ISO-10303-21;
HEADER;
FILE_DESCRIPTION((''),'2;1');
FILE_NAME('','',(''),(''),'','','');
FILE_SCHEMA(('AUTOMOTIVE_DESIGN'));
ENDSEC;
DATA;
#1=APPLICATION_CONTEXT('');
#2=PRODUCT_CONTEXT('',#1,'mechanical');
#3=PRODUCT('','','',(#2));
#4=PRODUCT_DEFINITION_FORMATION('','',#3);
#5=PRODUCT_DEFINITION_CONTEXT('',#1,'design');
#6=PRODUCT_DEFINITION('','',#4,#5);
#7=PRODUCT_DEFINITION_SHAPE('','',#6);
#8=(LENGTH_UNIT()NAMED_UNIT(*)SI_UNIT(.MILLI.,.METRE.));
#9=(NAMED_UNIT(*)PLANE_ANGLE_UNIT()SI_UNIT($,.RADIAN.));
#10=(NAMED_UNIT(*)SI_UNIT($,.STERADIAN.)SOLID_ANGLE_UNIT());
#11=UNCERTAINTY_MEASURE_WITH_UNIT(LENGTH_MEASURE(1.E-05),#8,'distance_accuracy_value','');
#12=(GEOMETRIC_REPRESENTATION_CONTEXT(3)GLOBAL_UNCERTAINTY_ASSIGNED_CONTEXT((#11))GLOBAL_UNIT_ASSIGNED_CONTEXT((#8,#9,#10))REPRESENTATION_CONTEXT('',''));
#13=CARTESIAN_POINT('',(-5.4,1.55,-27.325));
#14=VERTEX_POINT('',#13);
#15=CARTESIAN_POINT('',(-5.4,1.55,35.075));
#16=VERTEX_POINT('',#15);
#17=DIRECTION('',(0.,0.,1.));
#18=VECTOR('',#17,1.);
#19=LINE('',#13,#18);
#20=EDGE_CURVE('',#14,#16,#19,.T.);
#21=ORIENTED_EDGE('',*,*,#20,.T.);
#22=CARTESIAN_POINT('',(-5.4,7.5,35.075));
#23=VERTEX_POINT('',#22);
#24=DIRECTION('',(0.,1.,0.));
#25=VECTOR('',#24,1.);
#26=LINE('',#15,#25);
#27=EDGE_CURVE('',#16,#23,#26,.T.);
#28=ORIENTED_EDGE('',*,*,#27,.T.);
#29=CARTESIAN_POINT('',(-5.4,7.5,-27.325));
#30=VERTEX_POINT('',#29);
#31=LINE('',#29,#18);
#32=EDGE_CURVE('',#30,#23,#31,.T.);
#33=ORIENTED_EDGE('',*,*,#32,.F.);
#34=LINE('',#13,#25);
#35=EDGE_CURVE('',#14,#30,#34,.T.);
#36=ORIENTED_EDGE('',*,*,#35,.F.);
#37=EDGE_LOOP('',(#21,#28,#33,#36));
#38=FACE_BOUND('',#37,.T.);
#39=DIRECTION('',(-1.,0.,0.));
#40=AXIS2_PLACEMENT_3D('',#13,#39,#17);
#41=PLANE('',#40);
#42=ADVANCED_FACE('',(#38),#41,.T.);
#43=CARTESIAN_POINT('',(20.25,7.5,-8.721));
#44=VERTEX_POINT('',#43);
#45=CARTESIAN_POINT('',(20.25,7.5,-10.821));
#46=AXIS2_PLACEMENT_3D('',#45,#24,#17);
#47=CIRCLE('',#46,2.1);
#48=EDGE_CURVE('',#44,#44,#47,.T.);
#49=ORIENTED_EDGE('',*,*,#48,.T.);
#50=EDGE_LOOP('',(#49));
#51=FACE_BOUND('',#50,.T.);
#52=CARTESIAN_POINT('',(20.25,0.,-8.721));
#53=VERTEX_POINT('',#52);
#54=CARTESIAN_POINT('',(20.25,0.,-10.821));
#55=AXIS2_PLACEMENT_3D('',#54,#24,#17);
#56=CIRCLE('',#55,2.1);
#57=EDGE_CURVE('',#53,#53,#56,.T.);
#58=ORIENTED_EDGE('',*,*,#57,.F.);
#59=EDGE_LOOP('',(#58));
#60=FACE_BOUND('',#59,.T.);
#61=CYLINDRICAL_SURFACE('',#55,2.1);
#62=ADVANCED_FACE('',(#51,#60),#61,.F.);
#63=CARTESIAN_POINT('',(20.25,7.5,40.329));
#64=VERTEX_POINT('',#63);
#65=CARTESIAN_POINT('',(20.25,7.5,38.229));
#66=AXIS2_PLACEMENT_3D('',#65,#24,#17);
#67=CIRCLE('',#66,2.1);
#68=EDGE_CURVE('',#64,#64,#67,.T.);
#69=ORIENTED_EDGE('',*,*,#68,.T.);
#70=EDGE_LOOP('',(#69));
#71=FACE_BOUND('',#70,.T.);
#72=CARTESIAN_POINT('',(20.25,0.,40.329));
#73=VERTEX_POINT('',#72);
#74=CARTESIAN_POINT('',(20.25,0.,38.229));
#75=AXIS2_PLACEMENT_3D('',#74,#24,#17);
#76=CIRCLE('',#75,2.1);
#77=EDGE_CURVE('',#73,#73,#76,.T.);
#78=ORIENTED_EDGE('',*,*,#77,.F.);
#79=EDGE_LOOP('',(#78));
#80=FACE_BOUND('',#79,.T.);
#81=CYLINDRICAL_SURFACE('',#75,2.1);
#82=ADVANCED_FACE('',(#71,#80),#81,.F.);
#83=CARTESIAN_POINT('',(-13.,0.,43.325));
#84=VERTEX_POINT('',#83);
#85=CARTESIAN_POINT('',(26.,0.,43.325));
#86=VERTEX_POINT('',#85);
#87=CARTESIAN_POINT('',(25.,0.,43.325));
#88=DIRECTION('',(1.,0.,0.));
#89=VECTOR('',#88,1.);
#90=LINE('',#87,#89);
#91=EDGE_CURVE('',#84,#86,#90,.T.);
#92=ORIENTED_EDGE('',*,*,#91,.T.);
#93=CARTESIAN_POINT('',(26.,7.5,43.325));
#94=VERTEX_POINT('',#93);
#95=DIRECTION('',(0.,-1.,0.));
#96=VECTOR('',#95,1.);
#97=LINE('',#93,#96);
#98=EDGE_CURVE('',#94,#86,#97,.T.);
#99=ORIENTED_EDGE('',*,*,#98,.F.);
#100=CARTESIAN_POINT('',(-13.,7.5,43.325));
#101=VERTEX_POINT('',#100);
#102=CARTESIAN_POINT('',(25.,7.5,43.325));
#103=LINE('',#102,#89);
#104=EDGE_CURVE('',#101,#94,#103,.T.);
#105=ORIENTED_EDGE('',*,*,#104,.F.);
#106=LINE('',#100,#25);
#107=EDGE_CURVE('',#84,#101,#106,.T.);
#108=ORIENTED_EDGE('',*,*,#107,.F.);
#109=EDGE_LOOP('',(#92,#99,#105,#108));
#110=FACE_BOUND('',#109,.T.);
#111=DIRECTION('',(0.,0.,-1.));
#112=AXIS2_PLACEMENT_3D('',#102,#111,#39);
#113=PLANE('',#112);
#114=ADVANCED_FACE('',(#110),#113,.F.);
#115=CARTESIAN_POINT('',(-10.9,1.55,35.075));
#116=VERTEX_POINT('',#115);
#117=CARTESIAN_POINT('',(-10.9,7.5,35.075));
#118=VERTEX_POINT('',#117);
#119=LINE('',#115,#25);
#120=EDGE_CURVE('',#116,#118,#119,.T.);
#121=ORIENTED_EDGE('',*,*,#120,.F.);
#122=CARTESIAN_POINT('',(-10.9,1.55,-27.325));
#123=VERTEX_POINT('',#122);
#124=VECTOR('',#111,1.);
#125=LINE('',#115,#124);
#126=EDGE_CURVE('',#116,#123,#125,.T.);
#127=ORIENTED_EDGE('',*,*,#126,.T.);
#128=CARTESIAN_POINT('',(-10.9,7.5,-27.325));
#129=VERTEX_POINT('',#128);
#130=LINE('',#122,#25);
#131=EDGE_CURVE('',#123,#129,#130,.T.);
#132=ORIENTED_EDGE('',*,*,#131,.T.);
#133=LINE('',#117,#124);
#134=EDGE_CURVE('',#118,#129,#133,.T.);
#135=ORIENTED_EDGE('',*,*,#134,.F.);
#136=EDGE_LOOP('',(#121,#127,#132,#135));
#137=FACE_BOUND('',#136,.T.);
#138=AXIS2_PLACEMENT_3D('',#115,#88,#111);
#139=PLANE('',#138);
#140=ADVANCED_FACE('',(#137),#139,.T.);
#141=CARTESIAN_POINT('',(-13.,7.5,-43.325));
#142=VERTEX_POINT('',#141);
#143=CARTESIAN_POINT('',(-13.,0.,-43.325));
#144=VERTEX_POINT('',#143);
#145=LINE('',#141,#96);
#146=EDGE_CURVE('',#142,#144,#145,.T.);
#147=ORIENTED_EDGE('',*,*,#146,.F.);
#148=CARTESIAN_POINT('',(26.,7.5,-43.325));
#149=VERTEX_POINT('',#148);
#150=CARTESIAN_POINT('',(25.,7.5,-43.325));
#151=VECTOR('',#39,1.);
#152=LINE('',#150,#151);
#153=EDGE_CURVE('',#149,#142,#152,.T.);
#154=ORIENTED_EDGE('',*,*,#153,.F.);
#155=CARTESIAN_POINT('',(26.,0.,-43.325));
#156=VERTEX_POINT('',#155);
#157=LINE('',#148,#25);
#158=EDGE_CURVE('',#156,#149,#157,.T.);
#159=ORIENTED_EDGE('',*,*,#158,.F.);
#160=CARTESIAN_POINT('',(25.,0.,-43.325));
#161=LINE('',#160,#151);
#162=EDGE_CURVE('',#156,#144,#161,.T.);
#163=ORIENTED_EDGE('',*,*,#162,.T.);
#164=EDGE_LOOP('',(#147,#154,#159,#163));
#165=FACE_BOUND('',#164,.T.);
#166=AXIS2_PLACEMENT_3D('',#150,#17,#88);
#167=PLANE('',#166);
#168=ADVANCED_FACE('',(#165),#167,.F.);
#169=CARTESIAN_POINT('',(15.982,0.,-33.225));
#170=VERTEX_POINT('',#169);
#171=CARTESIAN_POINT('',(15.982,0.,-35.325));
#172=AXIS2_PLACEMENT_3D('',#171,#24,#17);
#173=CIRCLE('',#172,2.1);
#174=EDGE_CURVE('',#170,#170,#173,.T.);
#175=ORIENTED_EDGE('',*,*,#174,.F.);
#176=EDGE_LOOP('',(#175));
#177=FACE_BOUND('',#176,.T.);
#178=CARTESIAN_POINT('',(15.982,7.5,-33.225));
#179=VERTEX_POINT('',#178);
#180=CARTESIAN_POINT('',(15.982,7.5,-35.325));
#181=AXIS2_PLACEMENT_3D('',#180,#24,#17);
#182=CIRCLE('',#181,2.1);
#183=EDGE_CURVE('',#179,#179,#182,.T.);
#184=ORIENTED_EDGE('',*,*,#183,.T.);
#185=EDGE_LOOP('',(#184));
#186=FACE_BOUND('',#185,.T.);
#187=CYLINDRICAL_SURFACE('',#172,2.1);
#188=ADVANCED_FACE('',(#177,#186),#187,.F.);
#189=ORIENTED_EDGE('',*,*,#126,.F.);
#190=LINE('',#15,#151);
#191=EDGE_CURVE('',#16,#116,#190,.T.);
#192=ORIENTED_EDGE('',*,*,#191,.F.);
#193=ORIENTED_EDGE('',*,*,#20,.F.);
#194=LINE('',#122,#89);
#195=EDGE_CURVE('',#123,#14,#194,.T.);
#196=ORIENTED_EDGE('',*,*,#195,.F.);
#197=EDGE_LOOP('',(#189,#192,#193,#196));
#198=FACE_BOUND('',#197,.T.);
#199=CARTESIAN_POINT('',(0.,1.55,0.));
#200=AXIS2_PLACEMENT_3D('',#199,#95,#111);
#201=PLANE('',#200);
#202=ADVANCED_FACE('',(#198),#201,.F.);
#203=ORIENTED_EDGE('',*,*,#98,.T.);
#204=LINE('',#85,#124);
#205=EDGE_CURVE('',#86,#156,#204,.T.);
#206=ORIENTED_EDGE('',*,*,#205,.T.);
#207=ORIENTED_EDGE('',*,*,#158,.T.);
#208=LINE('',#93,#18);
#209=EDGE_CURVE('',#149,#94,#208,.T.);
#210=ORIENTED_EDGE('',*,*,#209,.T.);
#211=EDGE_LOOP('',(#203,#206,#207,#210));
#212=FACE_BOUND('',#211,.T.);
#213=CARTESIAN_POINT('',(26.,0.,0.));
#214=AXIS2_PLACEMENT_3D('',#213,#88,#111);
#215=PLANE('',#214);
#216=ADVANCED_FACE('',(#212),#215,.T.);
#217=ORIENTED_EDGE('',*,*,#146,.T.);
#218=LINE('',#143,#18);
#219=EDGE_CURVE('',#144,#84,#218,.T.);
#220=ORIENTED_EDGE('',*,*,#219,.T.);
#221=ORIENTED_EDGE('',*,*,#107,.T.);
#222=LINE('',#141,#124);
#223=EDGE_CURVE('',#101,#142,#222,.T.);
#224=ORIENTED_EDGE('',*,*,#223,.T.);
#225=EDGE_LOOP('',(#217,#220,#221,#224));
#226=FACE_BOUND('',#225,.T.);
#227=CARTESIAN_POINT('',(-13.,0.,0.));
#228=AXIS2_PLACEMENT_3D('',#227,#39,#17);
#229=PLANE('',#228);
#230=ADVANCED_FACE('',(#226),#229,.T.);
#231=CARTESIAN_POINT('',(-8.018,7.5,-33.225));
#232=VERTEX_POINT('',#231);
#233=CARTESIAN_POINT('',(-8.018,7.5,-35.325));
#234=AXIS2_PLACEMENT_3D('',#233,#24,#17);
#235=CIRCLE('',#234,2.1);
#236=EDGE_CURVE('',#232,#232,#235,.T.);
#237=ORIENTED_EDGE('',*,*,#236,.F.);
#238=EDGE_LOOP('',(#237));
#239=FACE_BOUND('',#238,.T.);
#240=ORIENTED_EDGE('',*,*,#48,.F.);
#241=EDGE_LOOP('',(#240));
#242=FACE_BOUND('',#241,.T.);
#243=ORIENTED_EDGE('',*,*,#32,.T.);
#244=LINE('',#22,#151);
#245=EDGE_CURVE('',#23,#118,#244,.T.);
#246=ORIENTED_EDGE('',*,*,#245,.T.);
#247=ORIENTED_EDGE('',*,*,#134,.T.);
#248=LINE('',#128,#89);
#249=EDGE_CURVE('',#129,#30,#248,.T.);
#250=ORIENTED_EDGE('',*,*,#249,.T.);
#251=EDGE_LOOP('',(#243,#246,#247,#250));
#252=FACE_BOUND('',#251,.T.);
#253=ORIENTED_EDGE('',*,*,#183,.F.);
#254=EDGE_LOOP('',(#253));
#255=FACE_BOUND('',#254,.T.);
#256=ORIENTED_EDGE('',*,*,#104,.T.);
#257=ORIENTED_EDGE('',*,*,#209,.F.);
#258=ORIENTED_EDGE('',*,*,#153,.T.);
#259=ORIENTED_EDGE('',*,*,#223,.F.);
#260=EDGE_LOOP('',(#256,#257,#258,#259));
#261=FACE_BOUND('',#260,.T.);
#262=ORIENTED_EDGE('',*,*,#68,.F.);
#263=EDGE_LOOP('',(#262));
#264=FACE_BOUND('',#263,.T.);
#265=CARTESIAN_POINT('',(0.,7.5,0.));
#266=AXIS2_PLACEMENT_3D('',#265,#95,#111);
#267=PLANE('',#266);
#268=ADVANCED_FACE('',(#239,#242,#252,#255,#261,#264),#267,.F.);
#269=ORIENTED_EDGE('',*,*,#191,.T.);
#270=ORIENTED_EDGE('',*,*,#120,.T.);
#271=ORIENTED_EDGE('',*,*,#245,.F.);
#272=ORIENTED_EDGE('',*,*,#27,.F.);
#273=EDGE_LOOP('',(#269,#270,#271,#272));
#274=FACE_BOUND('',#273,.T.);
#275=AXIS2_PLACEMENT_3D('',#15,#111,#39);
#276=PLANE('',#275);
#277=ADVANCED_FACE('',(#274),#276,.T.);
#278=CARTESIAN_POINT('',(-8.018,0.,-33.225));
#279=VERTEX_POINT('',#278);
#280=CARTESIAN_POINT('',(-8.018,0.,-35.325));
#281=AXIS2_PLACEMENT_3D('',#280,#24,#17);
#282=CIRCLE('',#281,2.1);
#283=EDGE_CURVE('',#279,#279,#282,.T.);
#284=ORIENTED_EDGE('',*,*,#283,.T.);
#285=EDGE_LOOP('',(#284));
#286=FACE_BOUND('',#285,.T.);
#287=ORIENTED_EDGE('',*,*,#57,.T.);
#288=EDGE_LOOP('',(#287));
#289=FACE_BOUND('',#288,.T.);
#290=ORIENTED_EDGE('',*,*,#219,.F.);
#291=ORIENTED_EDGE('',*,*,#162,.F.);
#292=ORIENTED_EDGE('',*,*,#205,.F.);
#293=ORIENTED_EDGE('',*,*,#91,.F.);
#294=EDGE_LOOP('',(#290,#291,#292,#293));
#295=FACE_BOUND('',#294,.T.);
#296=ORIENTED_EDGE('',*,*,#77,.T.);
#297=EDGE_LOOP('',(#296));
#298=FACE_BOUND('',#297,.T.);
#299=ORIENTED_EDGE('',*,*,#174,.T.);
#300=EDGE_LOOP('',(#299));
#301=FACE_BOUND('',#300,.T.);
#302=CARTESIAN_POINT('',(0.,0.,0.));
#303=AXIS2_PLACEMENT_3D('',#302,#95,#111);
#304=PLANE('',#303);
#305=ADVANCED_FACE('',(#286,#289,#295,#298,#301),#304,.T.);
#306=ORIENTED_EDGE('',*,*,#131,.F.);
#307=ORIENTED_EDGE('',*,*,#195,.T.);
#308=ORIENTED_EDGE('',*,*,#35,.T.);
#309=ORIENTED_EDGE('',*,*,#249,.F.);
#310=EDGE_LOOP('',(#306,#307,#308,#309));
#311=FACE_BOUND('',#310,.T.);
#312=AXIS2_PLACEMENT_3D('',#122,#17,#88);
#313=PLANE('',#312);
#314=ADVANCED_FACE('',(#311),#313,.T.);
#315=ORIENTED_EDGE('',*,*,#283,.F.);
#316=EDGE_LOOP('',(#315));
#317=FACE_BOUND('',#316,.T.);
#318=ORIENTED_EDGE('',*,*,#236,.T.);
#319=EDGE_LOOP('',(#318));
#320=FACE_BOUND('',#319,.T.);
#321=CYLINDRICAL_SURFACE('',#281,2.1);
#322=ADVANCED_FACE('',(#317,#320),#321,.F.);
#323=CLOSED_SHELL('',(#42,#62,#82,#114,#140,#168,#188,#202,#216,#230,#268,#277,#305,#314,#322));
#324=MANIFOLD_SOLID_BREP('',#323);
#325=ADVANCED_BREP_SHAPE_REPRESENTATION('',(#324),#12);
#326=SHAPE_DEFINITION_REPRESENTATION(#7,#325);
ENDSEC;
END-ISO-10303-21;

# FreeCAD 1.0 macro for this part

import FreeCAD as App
import Part
import Sketcher
from FreeCAD import Vector

doc = App.newDocument("Part")
body = doc.addObject("PartDesign::Body", "Body")

sketch1 = doc.addObject("Sketcher::SketchObject", "Sketch")
body.addObject(sketch1)
sketch1.AttachmentSupport = (doc.XZ_Plane, [""])
sketch1.MapMode = "FlatFace"
sketch1.addGeometry([
    Part.LineSegment(Vector(-25, -43, 0), Vector(-25, 43, 0)),
    Part.LineSegment(Vector(-25, 43, 0), Vector(25, 43, 0)),
    Part.LineSegment(Vector(25, 43, 0), Vector(25, -43, 0)),
    Part.LineSegment(Vector(25, -43, 0), Vector(-25, -43, 0)),
], False)
sketch1.addConstraint([
    Sketcher.Constraint("Coincident", 0, 2, 1, 1),
    Sketcher.Constraint("Coincident", 1, 2, 2, 1),
    Sketcher.Constraint("Coincident", 2, 2, 3, 1),
    Sketcher.Constraint("Coincident", 3, 2, 0, 1),
    Sketcher.Constraint("Vertical", 0),
    Sketcher.Constraint("Horizontal", 1),
    Sketcher.Constraint("Vertical", 2),
    Sketcher.Constraint("Horizontal", 3),
    Sketcher.Constraint("Symmetric", 0, 2, 2, 2, -1, 1),
    Sketcher.Constraint("DistanceX", 1, 1, 1, 2, 50.0),
    Sketcher.Constraint("DistanceY", 0, 1, 0, 2, 86.65),
])
pad1 = doc.addObject("PartDesign::Pad", "Pad")
body.addObject(pad1)
pad1.Profile = sketch1
pad1.Length = 7.5
pad1.Reversed = True

sketch2 = doc.addObject("Sketcher::SketchObject", "Sketch001")
body.addObject(sketch2)
sketch2.AttachmentSupport = (doc.XZ_Plane, [""])
sketch2.MapMode = "FlatFace"
sketch2.AttachmentOffset = App.Placement(Vector(0, 0, -7.5), App.Rotation())
sketch2.addGeometry([
    Part.LineSegment(Vector(-11, -27, 0), Vector(-11, 35, 0)),
    Part.LineSegment(Vector(-11, 35, 0), Vector(-5, 35, 0)),
    Part.LineSegment(Vector(-5, 35, 0), Vector(-5, -27, 0)),
    Part.LineSegment(Vector(-5, -27, 0), Vector(-11, -27, 0)),
], False)
sketch2.addConstraint([
    Sketcher.Constraint("Coincident", 0, 2, 1, 1),
    Sketcher.Constraint("Coincident", 1, 2, 2, 1),
    Sketcher.Constraint("Coincident", 2, 2, 3, 1),
    Sketcher.Constraint("Coincident", 3, 2, 0, 1),
    Sketcher.Constraint("Vertical", 0),
    Sketcher.Constraint("Horizontal", 1),
    Sketcher.Constraint("Vertical", 2),
    Sketcher.Constraint("Horizontal", 3),
    Sketcher.Constraint("DistanceX", 1, 1, 1, 2, 5.5),
    Sketcher.Constraint("DistanceY", 0, 1, 0, 2, 62.4),
    Sketcher.Constraint("DistanceX", 0, 2, -1, 1, 10.9),
    Sketcher.Constraint("DistanceY", -1, 1, 0, 2, 35.075),
])
pocket1 = doc.addObject("PartDesign::Pocket", "Pocket")
body.addObject(pocket1)
pocket1.Profile = sketch2
pocket1.Length = 5.95
pocket1.Reversed = True

sketch3 = doc.addObject("Sketcher::SketchObject", "Sketch002")
body.addObject(sketch3)
sketch3.AttachmentSupport = (doc.XZ_Plane, [""])
sketch3.MapMode = "FlatFace"
sketch3.AttachmentOffset = App.Placement(Vector(0, 0, -7.5), App.Rotation())
sketch3.addGeometry([
    Part.Circle(Vector(16, -35.3, 0), Vector(0, 0, 1), 2.1),
    Part.Circle(Vector(-8, -35.3, 0), Vector(0, 0, 1), 2.1),
], False)
sketch3.addConstraint([
    Sketcher.Constraint("Equal", 0, 1),
    Sketcher.Constraint("Horizontal", 0, 3, 1, 3),
    Sketcher.Constraint("Diameter", 0, 4.2),
    Sketcher.Constraint("DistanceX", 1, 3, 0, 3, 24.0),
    Sketcher.Constraint("DistanceX", -1, 1, 0, 3, 15.982),
    Sketcher.Constraint("DistanceY", 0, 3, -1, 1, 35.325),
])
pocket2 = doc.addObject("PartDesign::Pocket", "Pocket001")
body.addObject(pocket2)
pocket2.Profile = sketch3
pocket2.Type = "ThroughAll"
pocket2.Reversed = True

sketch4 = doc.addObject("Sketcher::SketchObject", "Sketch003")
body.addObject(sketch4)
sketch4.AttachmentSupport = (doc.XZ_Plane, [""])
sketch4.MapMode = "FlatFace"
sketch4.AttachmentOffset = App.Placement(Vector(0, 0, -7.5), App.Rotation())
sketch4.addGeometry([
    Part.Circle(Vector(20.2, -10.8, 0), Vector(0, 0, 1), 2.1),
    Part.Circle(Vector(20.2, 38.2, 0), Vector(0, 0, 1), 2.1),
], False)
sketch4.addConstraint([
    Sketcher.Constraint("Equal", 0, 1),
    Sketcher.Constraint("Vertical", 0, 3, 1, 3),
    Sketcher.Constraint("Diameter", 0, 4.2),
    Sketcher.Constraint("DistanceX", -1, 1, 0, 3, 20.25),
    Sketcher.Constraint("DistanceY", 0, 3, 1, 3, 49.05),
    Sketcher.Constraint("DistanceY", 0, 3, -1, 1, 10.821),
])
pocket3 = doc.addObject("PartDesign::Pocket", "Pocket002")
body.addObject(pocket3)
pocket3.Profile = sketch4
pocket3.Type = "ThroughAll"
pocket3.Reversed = True

sketch5 = doc.addObject("Sketcher::SketchObject", "Sketch004")
body.addObject(sketch5)
sketch5.AttachmentSupport = (doc.YZ_Plane, [""])
sketch5.MapMode = "FlatFace"
sketch5.AttachmentOffset = App.Placement(Vector(0, 0, 25), App.Rotation())
sketch5.addGeometry([
    Part.LineSegment(Vector(8, 43, 0), Vector(0, 43, 0)),
    Part.LineSegment(Vector(0, 43, 0), Vector(0, -43, 0)),
    Part.LineSegment(Vector(0, -43, 0), Vector(8, -43, 0)),
    Part.LineSegment(Vector(8, -43, 0), Vector(8, 43, 0)),
], False)
sketch5.addConstraint([
    Sketcher.Constraint("Coincident", 0, 2, 1, 1),
    Sketcher.Constraint("Coincident", 1, 2, 2, 1),
    Sketcher.Constraint("Coincident", 2, 2, 3, 1),
    Sketcher.Constraint("Coincident", 3, 2, 0, 1),
    Sketcher.Constraint("Horizontal", 0),
    Sketcher.Constraint("Vertical", 1),
    Sketcher.Constraint("Horizontal", 2),
    Sketcher.Constraint("Vertical", 3),
    Sketcher.Constraint("Symmetric", 0, 2, 1, 2, -1, 1),
    Sketcher.Constraint("DistanceX", 0, 2, 0, 1, 7.5),
    Sketcher.Constraint("DistanceY", 1, 2, 1, 1, 86.65),
])
pad2 = doc.addObject("PartDesign::Pad", "Pad001")
body.addObject(pad2)
pad2.Profile = sketch5
pad2.Length = 1

sketch6 = doc.addObject("Sketcher::SketchObject", "Sketch005")
body.addObject(sketch6)
sketch6.AttachmentSupport = (doc.YZ_Plane, [""])
sketch6.MapMode = "FlatFace"
sketch6.AttachmentOffset = App.Placement(Vector(0, 0, -25), App.Rotation())
sketch6.addGeometry([
    Part.LineSegment(Vector(8, -43, 0), Vector(0, -43, 0)),
    Part.LineSegment(Vector(0, -43, 0), Vector(0, 43, 0)),
    Part.LineSegment(Vector(0, 43, 0), Vector(8, 43, 0)),
    Part.LineSegment(Vector(8, 43, 0), Vector(8, -43, 0)),
], False)
sketch6.addConstraint([
    Sketcher.Constraint("Coincident", 0, 2, 1, 1),
    Sketcher.Constraint("Coincident", 1, 2, 2, 1),
    Sketcher.Constraint("Coincident", 2, 2, 3, 1),
    Sketcher.Constraint("Coincident", 3, 2, 0, 1),
    Sketcher.Constraint("Horizontal", 0),
    Sketcher.Constraint("Vertical", 1),
    Sketcher.Constraint("Horizontal", 2),
    Sketcher.Constraint("Vertical", 3),
    Sketcher.Constraint("Symmetric", 0, 2, 1, 2, -1, 1),
    Sketcher.Constraint("DistanceX", 0, 2, 0, 1, 7.5),
    Sketcher.Constraint("DistanceY", 1, 1, 1, 2, 86.65),
])
pocket4 = doc.addObject("PartDesign::Pocket", "Pocket003")
body.addObject(pocket4)
pocket4.Profile = sketch6
pocket4.Length = 12
pocket4.Reversed = True

doc.recompute()
